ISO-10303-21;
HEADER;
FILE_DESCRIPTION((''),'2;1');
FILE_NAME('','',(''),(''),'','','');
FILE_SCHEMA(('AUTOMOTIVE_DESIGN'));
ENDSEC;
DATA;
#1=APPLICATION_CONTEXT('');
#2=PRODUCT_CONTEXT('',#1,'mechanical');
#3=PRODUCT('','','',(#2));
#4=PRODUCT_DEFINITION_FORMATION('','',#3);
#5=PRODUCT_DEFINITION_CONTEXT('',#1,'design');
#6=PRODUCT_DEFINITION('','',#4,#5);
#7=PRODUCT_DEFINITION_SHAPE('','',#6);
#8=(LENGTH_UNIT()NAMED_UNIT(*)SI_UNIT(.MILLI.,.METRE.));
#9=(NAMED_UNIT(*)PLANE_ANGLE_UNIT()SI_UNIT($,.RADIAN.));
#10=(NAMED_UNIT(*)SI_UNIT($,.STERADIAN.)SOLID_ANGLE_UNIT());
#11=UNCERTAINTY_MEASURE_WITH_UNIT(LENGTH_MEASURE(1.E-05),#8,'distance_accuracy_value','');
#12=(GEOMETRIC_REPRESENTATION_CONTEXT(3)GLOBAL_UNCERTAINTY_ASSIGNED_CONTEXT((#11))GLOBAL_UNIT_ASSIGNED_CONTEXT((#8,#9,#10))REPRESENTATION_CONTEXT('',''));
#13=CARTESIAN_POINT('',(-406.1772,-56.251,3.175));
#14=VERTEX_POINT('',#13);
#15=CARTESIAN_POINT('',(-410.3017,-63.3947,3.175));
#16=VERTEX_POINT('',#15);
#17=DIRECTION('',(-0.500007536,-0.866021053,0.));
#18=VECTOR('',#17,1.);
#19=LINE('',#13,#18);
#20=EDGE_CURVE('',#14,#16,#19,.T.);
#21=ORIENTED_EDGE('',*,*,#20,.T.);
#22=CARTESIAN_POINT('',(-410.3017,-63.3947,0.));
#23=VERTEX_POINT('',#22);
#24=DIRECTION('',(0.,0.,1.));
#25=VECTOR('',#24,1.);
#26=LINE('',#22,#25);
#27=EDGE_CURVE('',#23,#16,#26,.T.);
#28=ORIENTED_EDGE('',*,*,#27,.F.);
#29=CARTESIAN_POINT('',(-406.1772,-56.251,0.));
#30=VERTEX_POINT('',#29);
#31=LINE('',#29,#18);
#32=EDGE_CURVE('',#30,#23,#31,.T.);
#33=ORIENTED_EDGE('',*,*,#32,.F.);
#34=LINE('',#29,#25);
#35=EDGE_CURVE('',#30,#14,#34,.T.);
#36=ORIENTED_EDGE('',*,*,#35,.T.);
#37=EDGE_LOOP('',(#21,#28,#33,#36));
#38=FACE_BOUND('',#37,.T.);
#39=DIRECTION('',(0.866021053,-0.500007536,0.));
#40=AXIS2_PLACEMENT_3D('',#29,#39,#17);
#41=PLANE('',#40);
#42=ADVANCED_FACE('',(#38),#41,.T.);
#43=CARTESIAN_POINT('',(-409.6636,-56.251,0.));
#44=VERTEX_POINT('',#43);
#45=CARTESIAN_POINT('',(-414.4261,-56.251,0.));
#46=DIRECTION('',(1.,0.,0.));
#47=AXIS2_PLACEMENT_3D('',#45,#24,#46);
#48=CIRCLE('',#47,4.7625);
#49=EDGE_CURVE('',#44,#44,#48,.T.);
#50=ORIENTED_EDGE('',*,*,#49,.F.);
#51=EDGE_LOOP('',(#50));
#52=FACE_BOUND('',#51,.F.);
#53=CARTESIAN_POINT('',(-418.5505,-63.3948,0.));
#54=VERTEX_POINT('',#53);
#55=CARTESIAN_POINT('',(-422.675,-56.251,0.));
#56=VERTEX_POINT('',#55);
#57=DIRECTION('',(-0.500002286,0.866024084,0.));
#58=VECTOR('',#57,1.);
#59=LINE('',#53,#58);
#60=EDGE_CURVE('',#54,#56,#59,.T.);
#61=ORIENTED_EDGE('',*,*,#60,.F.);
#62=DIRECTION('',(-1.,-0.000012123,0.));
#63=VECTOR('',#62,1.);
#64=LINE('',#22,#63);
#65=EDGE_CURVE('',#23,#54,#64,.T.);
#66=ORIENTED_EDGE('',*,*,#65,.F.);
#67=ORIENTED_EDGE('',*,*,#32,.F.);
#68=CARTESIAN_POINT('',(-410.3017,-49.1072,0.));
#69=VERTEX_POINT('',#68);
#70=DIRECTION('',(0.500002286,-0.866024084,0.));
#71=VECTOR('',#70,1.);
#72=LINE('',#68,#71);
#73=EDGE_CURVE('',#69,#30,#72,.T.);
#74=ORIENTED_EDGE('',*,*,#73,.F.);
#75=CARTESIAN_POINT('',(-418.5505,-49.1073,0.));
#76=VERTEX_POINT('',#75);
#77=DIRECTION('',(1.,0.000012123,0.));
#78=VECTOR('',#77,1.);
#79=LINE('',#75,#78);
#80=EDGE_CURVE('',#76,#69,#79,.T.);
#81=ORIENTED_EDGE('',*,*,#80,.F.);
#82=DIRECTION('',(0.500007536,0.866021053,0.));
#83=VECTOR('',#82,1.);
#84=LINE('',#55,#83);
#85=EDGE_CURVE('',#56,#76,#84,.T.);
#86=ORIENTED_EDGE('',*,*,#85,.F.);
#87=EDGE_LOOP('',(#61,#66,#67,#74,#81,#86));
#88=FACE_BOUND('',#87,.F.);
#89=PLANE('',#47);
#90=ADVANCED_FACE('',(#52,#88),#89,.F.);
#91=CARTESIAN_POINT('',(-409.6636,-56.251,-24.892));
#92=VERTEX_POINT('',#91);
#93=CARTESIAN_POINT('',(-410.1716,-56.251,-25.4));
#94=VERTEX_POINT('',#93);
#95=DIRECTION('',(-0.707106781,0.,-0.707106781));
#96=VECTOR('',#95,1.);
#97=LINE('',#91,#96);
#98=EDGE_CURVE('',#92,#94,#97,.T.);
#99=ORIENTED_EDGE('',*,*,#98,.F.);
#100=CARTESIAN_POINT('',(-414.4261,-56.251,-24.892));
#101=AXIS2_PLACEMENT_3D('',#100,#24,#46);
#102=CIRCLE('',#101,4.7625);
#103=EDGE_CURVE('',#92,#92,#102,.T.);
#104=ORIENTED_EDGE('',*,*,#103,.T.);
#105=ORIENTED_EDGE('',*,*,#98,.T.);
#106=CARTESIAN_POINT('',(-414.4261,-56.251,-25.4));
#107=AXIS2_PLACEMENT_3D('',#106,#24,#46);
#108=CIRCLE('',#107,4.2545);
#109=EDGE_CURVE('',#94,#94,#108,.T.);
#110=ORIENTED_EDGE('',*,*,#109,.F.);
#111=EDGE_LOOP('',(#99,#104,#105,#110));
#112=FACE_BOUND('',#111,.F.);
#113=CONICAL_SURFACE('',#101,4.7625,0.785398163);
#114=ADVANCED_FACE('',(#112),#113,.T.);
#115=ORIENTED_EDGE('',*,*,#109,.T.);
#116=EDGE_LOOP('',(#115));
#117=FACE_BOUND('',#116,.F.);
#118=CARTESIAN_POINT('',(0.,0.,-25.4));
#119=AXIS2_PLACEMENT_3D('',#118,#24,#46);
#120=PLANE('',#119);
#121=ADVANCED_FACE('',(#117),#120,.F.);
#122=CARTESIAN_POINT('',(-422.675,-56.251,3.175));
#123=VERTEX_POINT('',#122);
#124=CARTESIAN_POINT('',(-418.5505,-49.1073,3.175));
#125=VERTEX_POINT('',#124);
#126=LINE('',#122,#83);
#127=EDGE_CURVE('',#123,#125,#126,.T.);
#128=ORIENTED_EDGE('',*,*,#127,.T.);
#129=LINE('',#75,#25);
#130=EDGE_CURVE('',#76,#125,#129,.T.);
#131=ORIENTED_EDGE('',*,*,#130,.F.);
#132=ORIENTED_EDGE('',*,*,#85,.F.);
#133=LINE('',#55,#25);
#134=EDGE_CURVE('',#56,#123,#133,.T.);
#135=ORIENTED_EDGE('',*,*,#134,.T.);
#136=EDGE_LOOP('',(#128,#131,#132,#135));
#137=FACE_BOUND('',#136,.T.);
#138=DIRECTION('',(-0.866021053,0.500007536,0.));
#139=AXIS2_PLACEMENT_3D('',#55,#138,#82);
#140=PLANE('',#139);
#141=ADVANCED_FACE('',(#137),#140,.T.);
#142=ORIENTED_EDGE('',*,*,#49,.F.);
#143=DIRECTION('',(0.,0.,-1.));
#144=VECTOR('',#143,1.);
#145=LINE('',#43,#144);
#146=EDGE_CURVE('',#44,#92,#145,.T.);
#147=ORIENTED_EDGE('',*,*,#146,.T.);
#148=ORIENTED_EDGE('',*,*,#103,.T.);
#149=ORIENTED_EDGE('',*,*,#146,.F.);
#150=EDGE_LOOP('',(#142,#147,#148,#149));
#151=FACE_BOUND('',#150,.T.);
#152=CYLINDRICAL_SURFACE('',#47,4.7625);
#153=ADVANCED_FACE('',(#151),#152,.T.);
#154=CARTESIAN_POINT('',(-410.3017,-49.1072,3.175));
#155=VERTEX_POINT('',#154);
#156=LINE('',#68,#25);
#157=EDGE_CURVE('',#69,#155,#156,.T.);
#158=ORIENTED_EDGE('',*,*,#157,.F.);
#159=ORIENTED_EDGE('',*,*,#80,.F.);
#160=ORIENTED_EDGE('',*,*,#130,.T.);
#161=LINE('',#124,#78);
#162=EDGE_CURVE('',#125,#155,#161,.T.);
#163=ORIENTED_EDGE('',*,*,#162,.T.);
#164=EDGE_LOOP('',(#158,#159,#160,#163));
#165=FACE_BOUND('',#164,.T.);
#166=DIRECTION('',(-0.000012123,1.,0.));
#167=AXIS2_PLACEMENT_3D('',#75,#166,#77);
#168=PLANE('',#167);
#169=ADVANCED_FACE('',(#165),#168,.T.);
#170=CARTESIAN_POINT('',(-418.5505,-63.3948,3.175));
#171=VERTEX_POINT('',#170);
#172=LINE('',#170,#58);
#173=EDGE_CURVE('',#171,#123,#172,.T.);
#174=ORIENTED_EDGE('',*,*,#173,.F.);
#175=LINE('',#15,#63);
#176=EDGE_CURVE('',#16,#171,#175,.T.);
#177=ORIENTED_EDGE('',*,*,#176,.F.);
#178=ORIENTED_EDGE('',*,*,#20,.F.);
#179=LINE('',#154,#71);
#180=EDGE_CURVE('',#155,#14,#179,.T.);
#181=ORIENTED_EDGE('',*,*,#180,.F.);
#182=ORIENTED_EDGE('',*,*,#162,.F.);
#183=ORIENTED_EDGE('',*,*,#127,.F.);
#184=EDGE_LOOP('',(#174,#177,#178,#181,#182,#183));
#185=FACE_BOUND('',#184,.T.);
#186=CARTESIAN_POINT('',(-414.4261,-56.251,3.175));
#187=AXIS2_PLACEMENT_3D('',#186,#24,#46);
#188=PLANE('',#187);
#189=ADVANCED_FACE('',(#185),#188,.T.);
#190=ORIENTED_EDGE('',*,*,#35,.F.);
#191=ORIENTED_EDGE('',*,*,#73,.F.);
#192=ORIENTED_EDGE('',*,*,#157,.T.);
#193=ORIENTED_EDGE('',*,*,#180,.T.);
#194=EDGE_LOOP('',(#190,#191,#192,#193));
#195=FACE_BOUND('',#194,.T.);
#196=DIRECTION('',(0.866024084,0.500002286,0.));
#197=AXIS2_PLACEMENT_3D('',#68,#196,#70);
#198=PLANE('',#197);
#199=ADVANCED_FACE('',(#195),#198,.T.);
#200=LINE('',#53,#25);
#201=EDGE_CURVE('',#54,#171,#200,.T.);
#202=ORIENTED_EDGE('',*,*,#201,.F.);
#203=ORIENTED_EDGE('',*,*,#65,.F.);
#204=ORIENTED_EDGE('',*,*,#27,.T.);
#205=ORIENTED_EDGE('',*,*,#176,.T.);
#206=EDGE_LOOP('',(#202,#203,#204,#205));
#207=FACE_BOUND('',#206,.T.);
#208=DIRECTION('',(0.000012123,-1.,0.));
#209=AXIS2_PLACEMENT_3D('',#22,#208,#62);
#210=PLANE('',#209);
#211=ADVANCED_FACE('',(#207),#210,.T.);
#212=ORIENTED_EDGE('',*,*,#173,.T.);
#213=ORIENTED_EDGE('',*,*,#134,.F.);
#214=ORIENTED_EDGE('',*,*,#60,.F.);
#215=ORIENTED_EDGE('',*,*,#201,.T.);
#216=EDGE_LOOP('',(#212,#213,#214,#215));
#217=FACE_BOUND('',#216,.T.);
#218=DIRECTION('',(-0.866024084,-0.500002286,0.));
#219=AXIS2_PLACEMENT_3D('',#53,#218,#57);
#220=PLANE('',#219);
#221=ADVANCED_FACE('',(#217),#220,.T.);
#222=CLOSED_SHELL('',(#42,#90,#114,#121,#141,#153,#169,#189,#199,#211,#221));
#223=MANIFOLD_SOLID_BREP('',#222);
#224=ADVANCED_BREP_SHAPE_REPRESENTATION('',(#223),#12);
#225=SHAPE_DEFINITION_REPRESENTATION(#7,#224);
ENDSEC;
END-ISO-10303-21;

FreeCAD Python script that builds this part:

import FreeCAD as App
import Part
import Sketcher
Q = App.Units.Quantity


def edges_at(feature, points):
    """Names of the edges that pass closest to the given points."""
    edges = feature.Shape.Edges
    near = lambda p: min(range(len(edges)), key=lambda i: edges[i].distToShape(Part.Vertex(*p))[0])
    return sorted({f"Edge{near(p) + 1}" for p in points})


def add_polygon(sketch, points):
    """Adds a closed chain of lines whose ends are joined by coincident constraints."""
    first, n = sketch.GeometryCount, len(points)
    for a, b in zip(points, points[1:] + points[:1]):
        sketch.addGeometry(Part.LineSegment(App.Vector(*a, 0), App.Vector(*b, 0)), False)
    for i in range(n):
        sketch.addConstraint(Sketcher.Constraint("Coincident", first + i, 2, first + (i + 1) % n, 1))

doc = App.newDocument("Part")
body = doc.addObject("PartDesign::Body", "Body")

# Sketch on XY plane
sketch1 = doc.addObject("Sketcher::SketchObject", "Sketch")
body.addObject(sketch1)
sketch1.AttachmentSupport = (doc.XY_Plane, [""])
sketch1.MapMode = "FlatFace"
sketch1.addGeometry(Part.Circle(App.Vector(-414.4261, -56.251, 0), App.Vector(0, 0, 1), 4.7625), False)
sketch1.addConstraint(Sketcher.Constraint("Diameter", 0, Q("0.375 in")))
sketch1.addConstraint(Sketcher.Constraint("DistanceX", 0, 3, -1, 1, Q("16.316 in")))
sketch1.addConstraint(Sketcher.Constraint("DistanceY", 0, 3, -1, 1, Q("2.2146 in")))
pad1 = doc.addObject("PartDesign::Pad", "Pad")
body.addObject(pad1)
pad1.Profile = sketch1
pad1.Length = Q("1 in")
pad1.Reversed = True

# Sketch on XY plane
sketch2 = doc.addObject("Sketcher::SketchObject", "Sketch001")
body.addObject(sketch2)
sketch2.AttachmentSupport = (doc.XY_Plane, [""])
sketch2.MapMode = "FlatFace"
add_polygon(sketch2, [(-418.5505, -49.1073), (-422.675, -56.251), (-418.5505, -63.3948), (-410.3017, -63.3947), (-406.1772, -56.251), (-410.3017, -49.1072)])  # lines 0-5
sketch2.addConstraint(Sketcher.Constraint("Horizontal", 2))
sketch2.addConstraint(Sketcher.Constraint("Horizontal", 5))
sketch2.addConstraint(Sketcher.Constraint("Parallel", 0, 3))
sketch2.addConstraint(Sketcher.Constraint("Parallel", 1, 4))
sketch2.addConstraint(Sketcher.Constraint("Horizontal", 0, 2, 3, 2))
sketch2.addConstraint(Sketcher.Constraint("Vertical", 2, 2, 4, 2))
sketch2.addConstraint(Sketcher.Constraint("Vertical", 1, 2, 5, 2))
sketch2.addConstraint(Sketcher.Constraint("Angle", 0, Q("-120.0005 deg")))
sketch2.addConstraint(Sketcher.Constraint("DistanceY", 2, 2, 4, 2, Q("0.5625 in")))
sketch2.addConstraint(Sketcher.Constraint("DistanceX", 2, 1, 2, 2, Q("8.2488 mm")))
sketch2.addConstraint(Sketcher.Constraint("DistanceY", 0, 2, -1, 1, Q("2.2146 in")))
sketch2.addConstraint(Sketcher.Constraint("DistanceX", 2, 2, -1, 1, Q("16.1536 in")))
pad2 = doc.addObject("PartDesign::Pad", "Pad001")
body.addObject(pad2)
pad2.Profile = sketch2
pad2.Length = Q("0.125 in")
doc.recompute()

chamfer = doc.addObject("PartDesign::Chamfer", "Chamfer")
body.addObject(chamfer)
chamfer.Base = (pad2, edges_at(pad2, [(-419.189, -56.251, -25.4)]))
chamfer.Size = Q("0.02 in")

doc.recompute()
